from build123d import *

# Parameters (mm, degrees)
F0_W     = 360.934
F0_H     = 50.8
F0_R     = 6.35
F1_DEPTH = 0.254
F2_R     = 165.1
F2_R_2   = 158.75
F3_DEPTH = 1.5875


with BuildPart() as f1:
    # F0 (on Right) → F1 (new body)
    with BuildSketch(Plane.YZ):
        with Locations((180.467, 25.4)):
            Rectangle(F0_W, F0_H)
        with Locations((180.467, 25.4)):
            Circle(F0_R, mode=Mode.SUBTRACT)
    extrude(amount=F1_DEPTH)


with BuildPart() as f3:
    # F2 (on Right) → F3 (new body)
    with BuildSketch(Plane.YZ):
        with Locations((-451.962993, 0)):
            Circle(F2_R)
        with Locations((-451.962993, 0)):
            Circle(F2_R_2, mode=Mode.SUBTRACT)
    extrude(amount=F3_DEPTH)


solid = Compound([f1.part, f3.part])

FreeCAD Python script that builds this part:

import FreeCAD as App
import Part
import Sketcher

V = App.Vector
Q = App.Units.Quantity


def add_polygon(sketch, points):
    """Adds a closed chain of lines whose ends are joined by coincident constraints."""
    first, n = sketch.GeometryCount, len(points)
    for a, b in zip(points, points[1:] + points[:1]):
        sketch.addGeometry(Part.LineSegment(App.Vector(*a, 0), App.Vector(*b, 0)), False)
    for i in range(n):
        sketch.addConstraint(Sketcher.Constraint("Coincident", first + i, 2, first + (i + 1) % n, 1))

doc = App.newDocument("Part")
params = doc.addObject("Spreadsheet::Sheet", "Params")
for row, (alias, value) in enumerate([
    ("sketch1_diameter", "0.5 in"),
    ("sketch1_height", "2 in"),
    ("sketch1_width", "14.21 in"),
    ("pad1_length", "0.01 in"),
    ("sketch2_diameter", "13 in"),
    ("sketch2_diameter2", "12.5 in"),
    ("pad2_length", "0.0625 in"),
], start=1):
    params.set(f"A{row}", alias)
    params.set(f"B{row}", "=" + value)
    params.setAlias(f"B{row}", alias)

body = doc.addObject("PartDesign::Body", "Body")

# Sketch on YZ plane
sketch1 = body.newObject("Sketcher::SketchObject", "Sketch")
sketch1.AttachmentSupport = (doc.getObject("YZ_Plane"), [""])
sketch1.MapMode = "FlatFace"
add_polygon(sketch1, [(0, 51), (0, 0), (361, 0), (361, 51)])  # lines 0-3
sketch1.addGeometry(Part.Circle(V(180, 25, 0), V(0, 0, 1), 6), False)  # 4
sketch1.addConstraint([
    Sketcher.Constraint("Vertical", 0),
    Sketcher.Constraint("Horizontal", 1),
    Sketcher.Constraint("Vertical", 2),
    Sketcher.Constraint("Horizontal", 3),
    Sketcher.Constraint("Coincident", 0, 2, -1, 1),
    Sketcher.Constraint("Diameter", 4, Q("0.5 in")),
    Sketcher.Constraint("DistanceY", 0, 2, 0, 1, Q("2 in")),
    Sketcher.Constraint("DistanceY", -1, 1, 4, 3, Q("1 in")),
    Sketcher.Constraint("DistanceX", 1, 1, 1, 2, Q("14.21 in")),
    Sketcher.Constraint("DistanceX", -1, 1, 4, 3, Q("7.105 in")),
])
sketch1.setExpression("Constraints[9]", "Params.sketch1_diameter")
sketch1.setExpression("Constraints[10]", "Params.sketch1_height")
sketch1.setExpression("Constraints[12]", "Params.sketch1_width")
pad1 = body.newObject("PartDesign::Pad", "Pad")
pad1.Profile = sketch1
pad1.setExpression("Length", "Params.pad1_length")
body2 = doc.addObject("PartDesign::Body", "Body001")

# Sketch on YZ plane
sketch2 = body2.newObject("Sketcher::SketchObject", "Sketch001")
sketch2.AttachmentSupport = (doc.getObject("YZ_Plane001"), [""])
sketch2.MapMode = "FlatFace"
sketch2.addGeometry([
    Part.Circle(V(-452, 0, 0), V(0, 0, 1), 165),
    Part.Circle(V(-452, 0, 0), V(0, 0, 1), 159),
], False)
sketch2.addConstraint([
    Sketcher.Constraint("Coincident", 1, 3, 0, 3),
    Sketcher.Constraint("PointOnObject", 0, 3, -1),
    Sketcher.Constraint("Diameter", 0, Q("13 in")),
    Sketcher.Constraint("Diameter", 1, Q("12.5 in")),
    Sketcher.Constraint("DistanceX", 0, 3, -1, 1, Q("451.962993 mm")),
])
sketch2.setExpression("Constraints[2]", "Params.sketch2_diameter")
sketch2.setExpression("Constraints[3]", "Params.sketch2_diameter2")
pad2 = body2.newObject("PartDesign::Pad", "Pad001")
pad2.Profile = sketch2
pad2.setExpression("Length", "Params.pad2_length")

doc.recompute()
